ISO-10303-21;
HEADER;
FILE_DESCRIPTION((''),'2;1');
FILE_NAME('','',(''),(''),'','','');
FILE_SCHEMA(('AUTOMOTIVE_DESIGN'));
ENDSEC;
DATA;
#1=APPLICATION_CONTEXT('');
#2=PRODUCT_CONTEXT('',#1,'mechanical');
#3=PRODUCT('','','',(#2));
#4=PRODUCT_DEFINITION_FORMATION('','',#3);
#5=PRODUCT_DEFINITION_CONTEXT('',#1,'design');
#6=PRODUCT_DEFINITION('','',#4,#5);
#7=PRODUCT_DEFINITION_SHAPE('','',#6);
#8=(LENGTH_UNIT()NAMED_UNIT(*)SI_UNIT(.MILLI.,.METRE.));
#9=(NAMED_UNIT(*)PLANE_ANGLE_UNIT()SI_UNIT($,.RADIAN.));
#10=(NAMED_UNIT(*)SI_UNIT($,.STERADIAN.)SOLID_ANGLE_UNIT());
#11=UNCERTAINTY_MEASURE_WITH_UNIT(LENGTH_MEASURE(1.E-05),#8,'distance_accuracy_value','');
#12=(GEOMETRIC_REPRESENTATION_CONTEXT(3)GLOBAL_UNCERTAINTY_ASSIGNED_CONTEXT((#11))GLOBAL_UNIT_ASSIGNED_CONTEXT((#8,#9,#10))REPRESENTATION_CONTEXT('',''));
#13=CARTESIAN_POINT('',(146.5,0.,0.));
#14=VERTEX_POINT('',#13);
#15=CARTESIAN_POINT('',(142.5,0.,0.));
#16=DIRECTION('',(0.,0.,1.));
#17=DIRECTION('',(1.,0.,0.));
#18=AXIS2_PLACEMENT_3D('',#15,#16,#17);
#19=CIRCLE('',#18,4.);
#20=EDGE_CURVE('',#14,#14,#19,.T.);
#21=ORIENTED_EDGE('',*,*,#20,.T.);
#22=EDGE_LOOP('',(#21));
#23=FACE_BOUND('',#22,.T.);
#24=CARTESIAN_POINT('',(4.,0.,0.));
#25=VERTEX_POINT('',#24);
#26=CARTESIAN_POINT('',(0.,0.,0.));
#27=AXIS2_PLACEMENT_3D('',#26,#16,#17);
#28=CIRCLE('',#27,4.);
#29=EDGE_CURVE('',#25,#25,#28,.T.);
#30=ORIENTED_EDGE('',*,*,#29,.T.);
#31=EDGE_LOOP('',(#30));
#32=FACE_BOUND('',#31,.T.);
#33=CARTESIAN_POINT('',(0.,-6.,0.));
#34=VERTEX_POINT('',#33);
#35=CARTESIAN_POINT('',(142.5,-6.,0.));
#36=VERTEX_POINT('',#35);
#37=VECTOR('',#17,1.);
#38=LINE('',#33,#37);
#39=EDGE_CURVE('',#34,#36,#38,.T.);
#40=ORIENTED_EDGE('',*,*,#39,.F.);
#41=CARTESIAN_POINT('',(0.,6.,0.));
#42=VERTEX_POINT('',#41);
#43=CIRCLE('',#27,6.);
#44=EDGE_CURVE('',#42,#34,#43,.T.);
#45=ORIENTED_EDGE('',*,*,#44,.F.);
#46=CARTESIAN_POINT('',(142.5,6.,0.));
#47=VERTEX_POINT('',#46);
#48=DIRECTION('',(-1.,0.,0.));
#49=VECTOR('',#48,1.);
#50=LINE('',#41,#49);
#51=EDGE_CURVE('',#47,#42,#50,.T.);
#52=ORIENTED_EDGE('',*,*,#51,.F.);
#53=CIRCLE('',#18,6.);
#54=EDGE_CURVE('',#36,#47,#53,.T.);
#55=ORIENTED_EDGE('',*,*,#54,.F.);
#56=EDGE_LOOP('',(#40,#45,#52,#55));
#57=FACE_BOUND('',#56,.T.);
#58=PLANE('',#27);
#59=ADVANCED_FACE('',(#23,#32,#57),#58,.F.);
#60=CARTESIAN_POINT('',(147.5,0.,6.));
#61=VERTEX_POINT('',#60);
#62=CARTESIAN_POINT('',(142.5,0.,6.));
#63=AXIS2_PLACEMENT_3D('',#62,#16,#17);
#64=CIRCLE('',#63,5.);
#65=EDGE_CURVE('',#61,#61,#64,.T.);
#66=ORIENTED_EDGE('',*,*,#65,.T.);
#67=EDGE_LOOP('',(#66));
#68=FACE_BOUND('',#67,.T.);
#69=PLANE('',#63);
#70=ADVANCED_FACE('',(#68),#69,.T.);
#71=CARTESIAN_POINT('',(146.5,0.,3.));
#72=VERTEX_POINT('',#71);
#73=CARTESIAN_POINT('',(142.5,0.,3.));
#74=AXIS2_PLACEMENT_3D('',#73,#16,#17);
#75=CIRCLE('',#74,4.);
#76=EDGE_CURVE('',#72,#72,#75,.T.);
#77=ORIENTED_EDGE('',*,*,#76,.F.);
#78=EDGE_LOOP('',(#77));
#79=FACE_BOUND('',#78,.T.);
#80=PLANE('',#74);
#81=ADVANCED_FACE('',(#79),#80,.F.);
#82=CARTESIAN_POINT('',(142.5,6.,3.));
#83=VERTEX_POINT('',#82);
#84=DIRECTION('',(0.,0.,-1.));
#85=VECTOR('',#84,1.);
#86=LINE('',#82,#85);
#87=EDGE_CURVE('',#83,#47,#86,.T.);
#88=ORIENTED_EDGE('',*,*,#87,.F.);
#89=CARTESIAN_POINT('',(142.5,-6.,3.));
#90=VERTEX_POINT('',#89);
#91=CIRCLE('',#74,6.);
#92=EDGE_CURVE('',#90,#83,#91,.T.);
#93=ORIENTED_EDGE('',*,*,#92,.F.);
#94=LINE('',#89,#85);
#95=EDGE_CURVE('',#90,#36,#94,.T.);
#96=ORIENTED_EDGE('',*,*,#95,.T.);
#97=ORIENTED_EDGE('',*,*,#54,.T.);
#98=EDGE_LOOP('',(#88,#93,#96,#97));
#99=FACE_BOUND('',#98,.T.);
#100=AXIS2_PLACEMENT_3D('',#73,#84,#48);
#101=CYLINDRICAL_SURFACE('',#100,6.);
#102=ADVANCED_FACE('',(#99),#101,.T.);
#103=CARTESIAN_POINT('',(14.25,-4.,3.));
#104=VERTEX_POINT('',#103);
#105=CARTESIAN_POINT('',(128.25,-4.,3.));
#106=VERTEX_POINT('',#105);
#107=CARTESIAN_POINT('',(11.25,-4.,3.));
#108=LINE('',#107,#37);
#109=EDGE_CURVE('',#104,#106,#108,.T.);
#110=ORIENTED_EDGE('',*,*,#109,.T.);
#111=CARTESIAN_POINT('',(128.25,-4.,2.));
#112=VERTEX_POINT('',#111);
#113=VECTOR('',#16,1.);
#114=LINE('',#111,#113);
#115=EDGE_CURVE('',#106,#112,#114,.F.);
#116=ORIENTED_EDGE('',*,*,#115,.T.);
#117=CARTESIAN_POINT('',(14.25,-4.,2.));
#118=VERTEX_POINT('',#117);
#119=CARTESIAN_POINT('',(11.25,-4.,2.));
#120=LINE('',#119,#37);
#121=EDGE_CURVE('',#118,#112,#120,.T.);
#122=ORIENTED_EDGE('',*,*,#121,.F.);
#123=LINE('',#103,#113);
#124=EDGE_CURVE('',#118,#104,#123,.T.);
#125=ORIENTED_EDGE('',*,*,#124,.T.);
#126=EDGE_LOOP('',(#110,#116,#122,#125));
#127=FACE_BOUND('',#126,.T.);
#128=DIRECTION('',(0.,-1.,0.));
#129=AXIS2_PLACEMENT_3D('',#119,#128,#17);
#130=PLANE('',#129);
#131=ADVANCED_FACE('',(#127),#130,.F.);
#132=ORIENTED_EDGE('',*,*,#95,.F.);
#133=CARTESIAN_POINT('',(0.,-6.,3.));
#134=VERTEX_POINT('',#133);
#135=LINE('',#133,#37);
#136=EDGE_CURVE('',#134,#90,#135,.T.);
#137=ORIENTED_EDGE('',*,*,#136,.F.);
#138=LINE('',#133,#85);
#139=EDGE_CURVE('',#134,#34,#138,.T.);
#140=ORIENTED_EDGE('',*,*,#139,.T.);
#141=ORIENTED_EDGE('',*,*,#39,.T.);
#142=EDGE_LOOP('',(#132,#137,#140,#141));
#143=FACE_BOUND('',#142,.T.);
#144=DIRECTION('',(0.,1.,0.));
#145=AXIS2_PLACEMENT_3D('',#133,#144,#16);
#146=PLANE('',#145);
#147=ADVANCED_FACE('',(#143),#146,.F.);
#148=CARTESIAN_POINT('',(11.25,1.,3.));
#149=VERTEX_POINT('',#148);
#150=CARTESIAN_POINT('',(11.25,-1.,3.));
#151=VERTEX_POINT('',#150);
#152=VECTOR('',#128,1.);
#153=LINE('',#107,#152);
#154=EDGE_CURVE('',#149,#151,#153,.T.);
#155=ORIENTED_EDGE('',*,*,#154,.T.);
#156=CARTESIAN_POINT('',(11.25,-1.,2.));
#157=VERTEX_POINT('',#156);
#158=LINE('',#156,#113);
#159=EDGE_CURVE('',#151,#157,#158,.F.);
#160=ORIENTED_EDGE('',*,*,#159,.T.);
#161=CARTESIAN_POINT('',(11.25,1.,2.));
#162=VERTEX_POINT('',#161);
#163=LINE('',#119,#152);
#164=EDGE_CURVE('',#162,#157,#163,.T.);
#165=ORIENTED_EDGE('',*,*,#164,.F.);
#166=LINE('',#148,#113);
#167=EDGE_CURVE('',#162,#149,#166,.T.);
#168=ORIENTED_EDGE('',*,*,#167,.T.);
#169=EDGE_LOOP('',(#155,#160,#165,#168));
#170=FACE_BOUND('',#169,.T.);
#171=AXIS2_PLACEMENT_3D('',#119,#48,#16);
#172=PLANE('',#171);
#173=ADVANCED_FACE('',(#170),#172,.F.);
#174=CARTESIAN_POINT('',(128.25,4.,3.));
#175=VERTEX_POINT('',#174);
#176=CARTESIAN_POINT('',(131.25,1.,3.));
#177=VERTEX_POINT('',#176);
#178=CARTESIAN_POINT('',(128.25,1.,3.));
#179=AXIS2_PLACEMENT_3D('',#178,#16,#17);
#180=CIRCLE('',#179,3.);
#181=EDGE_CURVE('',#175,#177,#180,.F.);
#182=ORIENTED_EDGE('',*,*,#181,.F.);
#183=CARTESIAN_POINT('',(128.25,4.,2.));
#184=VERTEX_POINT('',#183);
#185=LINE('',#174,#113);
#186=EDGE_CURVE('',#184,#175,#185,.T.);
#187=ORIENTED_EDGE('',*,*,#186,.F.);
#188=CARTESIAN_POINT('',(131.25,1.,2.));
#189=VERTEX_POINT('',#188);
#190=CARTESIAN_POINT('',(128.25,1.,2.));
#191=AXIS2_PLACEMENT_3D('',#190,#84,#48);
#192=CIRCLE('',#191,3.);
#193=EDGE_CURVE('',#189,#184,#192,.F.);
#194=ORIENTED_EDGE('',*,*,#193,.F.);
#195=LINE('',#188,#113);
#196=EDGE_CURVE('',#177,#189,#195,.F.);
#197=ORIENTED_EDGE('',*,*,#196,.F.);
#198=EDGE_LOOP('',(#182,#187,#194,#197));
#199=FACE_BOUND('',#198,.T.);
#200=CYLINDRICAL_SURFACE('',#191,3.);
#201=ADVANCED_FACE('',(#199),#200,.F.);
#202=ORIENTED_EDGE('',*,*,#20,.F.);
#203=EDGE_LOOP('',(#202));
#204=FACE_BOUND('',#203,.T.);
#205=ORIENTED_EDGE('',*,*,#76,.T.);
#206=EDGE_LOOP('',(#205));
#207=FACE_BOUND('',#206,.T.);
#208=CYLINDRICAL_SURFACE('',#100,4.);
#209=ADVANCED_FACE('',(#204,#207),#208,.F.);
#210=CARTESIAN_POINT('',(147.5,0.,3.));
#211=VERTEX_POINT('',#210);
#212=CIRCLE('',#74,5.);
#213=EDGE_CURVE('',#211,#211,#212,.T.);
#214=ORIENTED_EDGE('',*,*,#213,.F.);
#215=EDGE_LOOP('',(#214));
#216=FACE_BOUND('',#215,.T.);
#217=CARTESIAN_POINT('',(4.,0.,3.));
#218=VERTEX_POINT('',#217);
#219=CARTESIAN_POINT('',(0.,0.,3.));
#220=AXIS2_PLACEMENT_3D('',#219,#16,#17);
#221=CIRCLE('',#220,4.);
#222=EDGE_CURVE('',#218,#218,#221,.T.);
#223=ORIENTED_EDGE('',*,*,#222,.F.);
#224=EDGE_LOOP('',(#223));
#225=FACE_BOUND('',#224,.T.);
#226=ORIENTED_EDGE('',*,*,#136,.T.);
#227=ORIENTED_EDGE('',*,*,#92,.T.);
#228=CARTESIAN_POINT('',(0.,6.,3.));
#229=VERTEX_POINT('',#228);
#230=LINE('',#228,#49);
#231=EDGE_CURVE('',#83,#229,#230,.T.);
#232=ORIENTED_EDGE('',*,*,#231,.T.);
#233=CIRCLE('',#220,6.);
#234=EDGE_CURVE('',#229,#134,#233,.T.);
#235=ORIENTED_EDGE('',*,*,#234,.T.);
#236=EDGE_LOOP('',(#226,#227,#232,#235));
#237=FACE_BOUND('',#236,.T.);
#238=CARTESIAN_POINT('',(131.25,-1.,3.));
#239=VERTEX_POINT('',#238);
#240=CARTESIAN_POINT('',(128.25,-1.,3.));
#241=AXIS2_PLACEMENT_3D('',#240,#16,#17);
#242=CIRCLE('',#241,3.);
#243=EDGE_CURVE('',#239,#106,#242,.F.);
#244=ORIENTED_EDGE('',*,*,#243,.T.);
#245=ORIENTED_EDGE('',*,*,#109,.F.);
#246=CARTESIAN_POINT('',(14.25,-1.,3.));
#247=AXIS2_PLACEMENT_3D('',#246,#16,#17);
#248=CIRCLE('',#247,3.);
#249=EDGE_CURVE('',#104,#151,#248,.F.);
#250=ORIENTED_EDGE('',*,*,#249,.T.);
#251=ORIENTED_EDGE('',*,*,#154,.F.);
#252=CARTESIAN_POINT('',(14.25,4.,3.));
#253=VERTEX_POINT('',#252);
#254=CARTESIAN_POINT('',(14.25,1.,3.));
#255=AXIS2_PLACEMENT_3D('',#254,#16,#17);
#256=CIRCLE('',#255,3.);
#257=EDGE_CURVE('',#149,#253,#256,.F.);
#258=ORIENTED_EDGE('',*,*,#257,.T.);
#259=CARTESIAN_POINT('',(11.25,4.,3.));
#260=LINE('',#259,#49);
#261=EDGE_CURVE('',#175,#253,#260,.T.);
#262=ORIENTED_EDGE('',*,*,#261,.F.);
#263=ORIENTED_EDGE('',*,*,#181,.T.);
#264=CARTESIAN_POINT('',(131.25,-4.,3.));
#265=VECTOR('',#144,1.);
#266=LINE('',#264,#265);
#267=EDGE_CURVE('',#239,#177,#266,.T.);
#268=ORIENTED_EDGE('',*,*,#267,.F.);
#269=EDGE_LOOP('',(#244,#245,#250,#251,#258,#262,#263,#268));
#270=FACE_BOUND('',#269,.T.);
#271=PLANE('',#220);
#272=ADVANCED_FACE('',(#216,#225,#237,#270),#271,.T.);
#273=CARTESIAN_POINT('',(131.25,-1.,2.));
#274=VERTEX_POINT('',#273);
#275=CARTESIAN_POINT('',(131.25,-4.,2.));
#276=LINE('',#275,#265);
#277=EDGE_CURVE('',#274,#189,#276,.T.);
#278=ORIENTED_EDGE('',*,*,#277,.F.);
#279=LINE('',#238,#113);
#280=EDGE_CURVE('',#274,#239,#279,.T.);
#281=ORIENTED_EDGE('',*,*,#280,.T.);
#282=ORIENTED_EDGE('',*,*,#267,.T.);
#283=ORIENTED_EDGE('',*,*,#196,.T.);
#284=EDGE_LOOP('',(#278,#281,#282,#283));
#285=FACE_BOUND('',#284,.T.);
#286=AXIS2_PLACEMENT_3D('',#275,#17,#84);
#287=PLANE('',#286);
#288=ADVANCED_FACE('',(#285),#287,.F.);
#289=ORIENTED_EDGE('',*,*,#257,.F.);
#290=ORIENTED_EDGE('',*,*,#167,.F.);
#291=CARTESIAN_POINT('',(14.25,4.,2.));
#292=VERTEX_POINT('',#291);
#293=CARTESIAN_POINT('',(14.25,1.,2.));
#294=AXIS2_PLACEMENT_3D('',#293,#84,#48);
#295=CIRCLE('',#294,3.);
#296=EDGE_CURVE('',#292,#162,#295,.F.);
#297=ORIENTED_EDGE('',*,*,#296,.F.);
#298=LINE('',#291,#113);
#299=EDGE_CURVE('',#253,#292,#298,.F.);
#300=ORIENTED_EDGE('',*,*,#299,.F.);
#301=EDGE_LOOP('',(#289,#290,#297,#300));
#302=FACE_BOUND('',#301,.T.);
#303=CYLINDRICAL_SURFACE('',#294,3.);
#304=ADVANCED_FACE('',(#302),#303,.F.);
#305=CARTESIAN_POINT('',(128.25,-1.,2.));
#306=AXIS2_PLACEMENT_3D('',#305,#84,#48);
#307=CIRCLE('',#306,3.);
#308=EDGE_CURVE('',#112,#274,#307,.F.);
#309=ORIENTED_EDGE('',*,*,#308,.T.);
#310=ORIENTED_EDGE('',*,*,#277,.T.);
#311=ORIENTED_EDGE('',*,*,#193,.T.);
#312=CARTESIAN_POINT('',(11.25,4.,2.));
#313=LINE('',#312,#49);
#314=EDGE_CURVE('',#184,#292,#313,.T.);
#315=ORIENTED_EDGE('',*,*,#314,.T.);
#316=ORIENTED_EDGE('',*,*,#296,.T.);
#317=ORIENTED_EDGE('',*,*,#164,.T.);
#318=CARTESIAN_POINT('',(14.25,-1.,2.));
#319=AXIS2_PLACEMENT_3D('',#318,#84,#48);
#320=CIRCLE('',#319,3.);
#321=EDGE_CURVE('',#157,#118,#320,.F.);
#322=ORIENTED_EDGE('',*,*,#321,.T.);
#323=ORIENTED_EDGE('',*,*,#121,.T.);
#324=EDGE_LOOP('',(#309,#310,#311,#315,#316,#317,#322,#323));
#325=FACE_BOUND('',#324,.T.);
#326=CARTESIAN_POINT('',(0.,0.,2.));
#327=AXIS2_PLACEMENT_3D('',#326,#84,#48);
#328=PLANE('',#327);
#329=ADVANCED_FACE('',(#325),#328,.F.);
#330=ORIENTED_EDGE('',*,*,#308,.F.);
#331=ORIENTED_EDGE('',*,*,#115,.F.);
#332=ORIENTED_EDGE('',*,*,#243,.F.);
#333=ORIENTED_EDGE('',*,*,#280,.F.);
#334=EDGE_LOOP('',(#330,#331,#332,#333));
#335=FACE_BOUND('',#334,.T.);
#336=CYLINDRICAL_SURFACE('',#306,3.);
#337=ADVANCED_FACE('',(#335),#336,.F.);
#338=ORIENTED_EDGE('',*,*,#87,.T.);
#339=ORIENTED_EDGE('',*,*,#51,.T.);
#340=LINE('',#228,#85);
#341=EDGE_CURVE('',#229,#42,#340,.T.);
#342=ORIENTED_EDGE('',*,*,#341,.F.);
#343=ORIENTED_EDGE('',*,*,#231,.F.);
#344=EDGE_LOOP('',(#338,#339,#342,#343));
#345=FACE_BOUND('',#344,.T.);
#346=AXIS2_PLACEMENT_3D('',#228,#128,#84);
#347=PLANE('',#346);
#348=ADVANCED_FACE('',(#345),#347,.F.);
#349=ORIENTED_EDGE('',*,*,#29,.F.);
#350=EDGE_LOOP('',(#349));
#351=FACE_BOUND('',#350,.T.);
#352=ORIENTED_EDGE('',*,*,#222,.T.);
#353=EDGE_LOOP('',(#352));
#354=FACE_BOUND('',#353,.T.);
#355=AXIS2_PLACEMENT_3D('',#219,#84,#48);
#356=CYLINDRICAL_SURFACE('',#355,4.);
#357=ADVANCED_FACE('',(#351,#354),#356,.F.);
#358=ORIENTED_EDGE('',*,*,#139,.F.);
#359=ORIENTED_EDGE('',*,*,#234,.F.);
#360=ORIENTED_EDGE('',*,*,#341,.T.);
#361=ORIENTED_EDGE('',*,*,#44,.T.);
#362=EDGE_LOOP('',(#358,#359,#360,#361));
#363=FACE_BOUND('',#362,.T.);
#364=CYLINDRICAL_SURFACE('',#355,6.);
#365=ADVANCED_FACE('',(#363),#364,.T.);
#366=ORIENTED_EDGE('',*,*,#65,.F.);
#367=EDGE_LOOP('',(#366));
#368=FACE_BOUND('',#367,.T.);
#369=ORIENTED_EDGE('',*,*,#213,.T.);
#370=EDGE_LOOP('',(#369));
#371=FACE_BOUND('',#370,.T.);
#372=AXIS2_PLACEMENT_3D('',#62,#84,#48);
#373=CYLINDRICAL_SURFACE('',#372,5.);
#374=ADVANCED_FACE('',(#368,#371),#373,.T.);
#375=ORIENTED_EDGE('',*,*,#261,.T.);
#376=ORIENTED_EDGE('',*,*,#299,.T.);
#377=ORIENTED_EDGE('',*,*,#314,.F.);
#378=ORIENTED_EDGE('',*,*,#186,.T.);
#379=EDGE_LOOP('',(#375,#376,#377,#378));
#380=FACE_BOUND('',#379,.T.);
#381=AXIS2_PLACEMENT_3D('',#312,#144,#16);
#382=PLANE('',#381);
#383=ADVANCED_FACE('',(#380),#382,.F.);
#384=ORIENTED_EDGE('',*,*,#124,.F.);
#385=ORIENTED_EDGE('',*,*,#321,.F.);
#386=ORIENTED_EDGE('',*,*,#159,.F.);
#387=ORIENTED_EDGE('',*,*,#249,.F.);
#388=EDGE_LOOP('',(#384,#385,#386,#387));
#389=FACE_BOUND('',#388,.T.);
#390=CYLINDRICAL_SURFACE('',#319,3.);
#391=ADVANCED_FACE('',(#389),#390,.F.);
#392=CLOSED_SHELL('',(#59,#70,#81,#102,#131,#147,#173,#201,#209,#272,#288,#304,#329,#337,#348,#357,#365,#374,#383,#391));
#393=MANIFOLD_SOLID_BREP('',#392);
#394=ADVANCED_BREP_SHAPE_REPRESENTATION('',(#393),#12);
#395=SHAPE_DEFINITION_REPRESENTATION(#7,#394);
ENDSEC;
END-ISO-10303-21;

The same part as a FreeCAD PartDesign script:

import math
import FreeCAD as App
import Part
import Sketcher
Q = App.Units.Quantity


def edges_at(feature, points):
    """Names of the edges that pass closest to the given points."""
    edges = feature.Shape.Edges
    near = lambda p: min(range(len(edges)), key=lambda i: edges[i].distToShape(Part.Vertex(*p))[0])
    return sorted({f"Edge{near(p) + 1}" for p in points})

doc = App.newDocument("Part")
body = doc.addObject("PartDesign::Body", "Body")

sketch1 = body.newObject("Sketcher::SketchObject", "Sketch")
sketch1.AttachmentSupport = (doc.getObject("XY_Plane"), [""])
sketch1.MapMode = "FlatFace"
sketch1.addGeometry([
    Part.LineSegment(App.Vector(142.5, 6, 0), App.Vector(0, 6, 0)),
    Part.ArcOfCircle(Part.Circle(App.Vector(0, 0, 0), App.Vector(0, 0, 1), 6), math.radians(90), math.radians(270)),
    Part.LineSegment(App.Vector(0, -6, 0), App.Vector(142.5, -6, 0)),
    Part.ArcOfCircle(Part.Circle(App.Vector(142.5, 0, 0), App.Vector(0, 0, 1), 6), math.radians(-90), math.radians(90)),
    Part.Circle(App.Vector(142.5, 0, 0), App.Vector(0, 0, 1), 4),
    Part.Circle(App.Vector(0, 0, 0), App.Vector(0, 0, 1), 4),
], False)
sketch1.addConstraint([
    Sketcher.Constraint("Tangent", 0, 2, 1, 1),
    Sketcher.Constraint("Tangent", 1, 2, 2, 1),
    Sketcher.Constraint("Tangent", 2, 2, 3, 1),
    Sketcher.Constraint("Tangent", 3, 2, 0, 1),
    Sketcher.Constraint("Horizontal", 0),
    Sketcher.Constraint("Horizontal", 2),
    Sketcher.Constraint("Coincident", 1, 3, -1, 1),
    Sketcher.Constraint("Coincident", 5, 3, -1, 1),
    Sketcher.Constraint("Coincident", 4, 3, 3, 3),
    Sketcher.Constraint("Equal", 4, 5),
    Sketcher.Constraint("Diameter", 4, Q("8 mm")),
    Sketcher.Constraint("Radius", 1, Q("6 mm")),
    Sketcher.Constraint("DistanceX", 0, 2, 0, 1, Q("142.5 mm")),
])
pad1 = body.newObject("PartDesign::Pad", "Pad")
pad1.Profile = sketch1
pad1.Length = 3

sketch2 = body.newObject("Sketcher::SketchObject", "Sketch001")
sketch2.AttachmentSupport = (doc.getObject("XY_Plane"), [""])
sketch2.MapMode = "FlatFace"
sketch2.AttachmentOffset = App.Placement(App.Vector(0, 0, 3), App.Rotation())
sketch2.addGeometry(Part.Circle(App.Vector(142, 0, 0), App.Vector(0, 0, 1), 5), False)
sketch2.addConstraint([
    Sketcher.Constraint("PointOnObject", 0, 3, -1),
    Sketcher.Constraint("Diameter", 0, Q("10 mm")),
    Sketcher.Constraint("DistanceX", -1, 1, 0, 3, Q("142.5 mm")),
])
pad2 = body.newObject("PartDesign::Pad", "Pad001")
pad2.Profile = sketch2
pad2.Length = 3

sketch3 = body.newObject("Sketcher::SketchObject", "Sketch002")
sketch3.AttachmentSupport = (doc.getObject("XY_Plane"), [""])
sketch3.MapMode = "FlatFace"
sketch3.AttachmentOffset = App.Placement(App.Vector(0, 0, 3), App.Rotation())
sketch3.addGeometry([
    Part.LineSegment(App.Vector(11, 4, 0), App.Vector(11, -4, 0)),
    Part.LineSegment(App.Vector(11, -4, 0), App.Vector(131, -4, 0)),
    Part.LineSegment(App.Vector(131, -4, 0), App.Vector(131, 4, 0)),
    Part.LineSegment(App.Vector(131, 4, 0), App.Vector(11, 4, 0)),
], False)
sketch3.addConstraint([
    Sketcher.Constraint("Coincident", 0, 2, 1, 1),
    Sketcher.Constraint("Coincident", 1, 2, 2, 1),
    Sketcher.Constraint("Coincident", 2, 2, 3, 1),
    Sketcher.Constraint("Coincident", 3, 2, 0, 1),
    Sketcher.Constraint("Vertical", 0),
    Sketcher.Constraint("Horizontal", 1),
    Sketcher.Constraint("Vertical", 2),
    Sketcher.Constraint("Horizontal", 3),
    Sketcher.Constraint("DistanceX", 1, 1, 1, 2, Q("120 mm")),
    Sketcher.Constraint("DistanceY", 0, 2, 0, 1, Q("8 mm")),
    Sketcher.Constraint("DistanceY", 0, 2, -1, 1, Q("4 mm")),
    Sketcher.Constraint("DistanceX", -1, 1, 0, 2, Q("11.25 mm")),
])
pocket1 = body.newObject("PartDesign::Pocket", "Pocket")
pocket1.Profile = sketch3
pocket1.Length = 1
doc.recompute()

fillet = body.newObject("PartDesign::Fillet", "Fillet")
fillet.Base = (pocket1, edges_at(pocket1, [
    (131.25, 4, 2.5),
    (131.25, -4, 2.5),
    (11.25, -4, 2.5),
    (11.25, 4, 2.5),
]))
fillet.Radius = 3

doc.recompute()
